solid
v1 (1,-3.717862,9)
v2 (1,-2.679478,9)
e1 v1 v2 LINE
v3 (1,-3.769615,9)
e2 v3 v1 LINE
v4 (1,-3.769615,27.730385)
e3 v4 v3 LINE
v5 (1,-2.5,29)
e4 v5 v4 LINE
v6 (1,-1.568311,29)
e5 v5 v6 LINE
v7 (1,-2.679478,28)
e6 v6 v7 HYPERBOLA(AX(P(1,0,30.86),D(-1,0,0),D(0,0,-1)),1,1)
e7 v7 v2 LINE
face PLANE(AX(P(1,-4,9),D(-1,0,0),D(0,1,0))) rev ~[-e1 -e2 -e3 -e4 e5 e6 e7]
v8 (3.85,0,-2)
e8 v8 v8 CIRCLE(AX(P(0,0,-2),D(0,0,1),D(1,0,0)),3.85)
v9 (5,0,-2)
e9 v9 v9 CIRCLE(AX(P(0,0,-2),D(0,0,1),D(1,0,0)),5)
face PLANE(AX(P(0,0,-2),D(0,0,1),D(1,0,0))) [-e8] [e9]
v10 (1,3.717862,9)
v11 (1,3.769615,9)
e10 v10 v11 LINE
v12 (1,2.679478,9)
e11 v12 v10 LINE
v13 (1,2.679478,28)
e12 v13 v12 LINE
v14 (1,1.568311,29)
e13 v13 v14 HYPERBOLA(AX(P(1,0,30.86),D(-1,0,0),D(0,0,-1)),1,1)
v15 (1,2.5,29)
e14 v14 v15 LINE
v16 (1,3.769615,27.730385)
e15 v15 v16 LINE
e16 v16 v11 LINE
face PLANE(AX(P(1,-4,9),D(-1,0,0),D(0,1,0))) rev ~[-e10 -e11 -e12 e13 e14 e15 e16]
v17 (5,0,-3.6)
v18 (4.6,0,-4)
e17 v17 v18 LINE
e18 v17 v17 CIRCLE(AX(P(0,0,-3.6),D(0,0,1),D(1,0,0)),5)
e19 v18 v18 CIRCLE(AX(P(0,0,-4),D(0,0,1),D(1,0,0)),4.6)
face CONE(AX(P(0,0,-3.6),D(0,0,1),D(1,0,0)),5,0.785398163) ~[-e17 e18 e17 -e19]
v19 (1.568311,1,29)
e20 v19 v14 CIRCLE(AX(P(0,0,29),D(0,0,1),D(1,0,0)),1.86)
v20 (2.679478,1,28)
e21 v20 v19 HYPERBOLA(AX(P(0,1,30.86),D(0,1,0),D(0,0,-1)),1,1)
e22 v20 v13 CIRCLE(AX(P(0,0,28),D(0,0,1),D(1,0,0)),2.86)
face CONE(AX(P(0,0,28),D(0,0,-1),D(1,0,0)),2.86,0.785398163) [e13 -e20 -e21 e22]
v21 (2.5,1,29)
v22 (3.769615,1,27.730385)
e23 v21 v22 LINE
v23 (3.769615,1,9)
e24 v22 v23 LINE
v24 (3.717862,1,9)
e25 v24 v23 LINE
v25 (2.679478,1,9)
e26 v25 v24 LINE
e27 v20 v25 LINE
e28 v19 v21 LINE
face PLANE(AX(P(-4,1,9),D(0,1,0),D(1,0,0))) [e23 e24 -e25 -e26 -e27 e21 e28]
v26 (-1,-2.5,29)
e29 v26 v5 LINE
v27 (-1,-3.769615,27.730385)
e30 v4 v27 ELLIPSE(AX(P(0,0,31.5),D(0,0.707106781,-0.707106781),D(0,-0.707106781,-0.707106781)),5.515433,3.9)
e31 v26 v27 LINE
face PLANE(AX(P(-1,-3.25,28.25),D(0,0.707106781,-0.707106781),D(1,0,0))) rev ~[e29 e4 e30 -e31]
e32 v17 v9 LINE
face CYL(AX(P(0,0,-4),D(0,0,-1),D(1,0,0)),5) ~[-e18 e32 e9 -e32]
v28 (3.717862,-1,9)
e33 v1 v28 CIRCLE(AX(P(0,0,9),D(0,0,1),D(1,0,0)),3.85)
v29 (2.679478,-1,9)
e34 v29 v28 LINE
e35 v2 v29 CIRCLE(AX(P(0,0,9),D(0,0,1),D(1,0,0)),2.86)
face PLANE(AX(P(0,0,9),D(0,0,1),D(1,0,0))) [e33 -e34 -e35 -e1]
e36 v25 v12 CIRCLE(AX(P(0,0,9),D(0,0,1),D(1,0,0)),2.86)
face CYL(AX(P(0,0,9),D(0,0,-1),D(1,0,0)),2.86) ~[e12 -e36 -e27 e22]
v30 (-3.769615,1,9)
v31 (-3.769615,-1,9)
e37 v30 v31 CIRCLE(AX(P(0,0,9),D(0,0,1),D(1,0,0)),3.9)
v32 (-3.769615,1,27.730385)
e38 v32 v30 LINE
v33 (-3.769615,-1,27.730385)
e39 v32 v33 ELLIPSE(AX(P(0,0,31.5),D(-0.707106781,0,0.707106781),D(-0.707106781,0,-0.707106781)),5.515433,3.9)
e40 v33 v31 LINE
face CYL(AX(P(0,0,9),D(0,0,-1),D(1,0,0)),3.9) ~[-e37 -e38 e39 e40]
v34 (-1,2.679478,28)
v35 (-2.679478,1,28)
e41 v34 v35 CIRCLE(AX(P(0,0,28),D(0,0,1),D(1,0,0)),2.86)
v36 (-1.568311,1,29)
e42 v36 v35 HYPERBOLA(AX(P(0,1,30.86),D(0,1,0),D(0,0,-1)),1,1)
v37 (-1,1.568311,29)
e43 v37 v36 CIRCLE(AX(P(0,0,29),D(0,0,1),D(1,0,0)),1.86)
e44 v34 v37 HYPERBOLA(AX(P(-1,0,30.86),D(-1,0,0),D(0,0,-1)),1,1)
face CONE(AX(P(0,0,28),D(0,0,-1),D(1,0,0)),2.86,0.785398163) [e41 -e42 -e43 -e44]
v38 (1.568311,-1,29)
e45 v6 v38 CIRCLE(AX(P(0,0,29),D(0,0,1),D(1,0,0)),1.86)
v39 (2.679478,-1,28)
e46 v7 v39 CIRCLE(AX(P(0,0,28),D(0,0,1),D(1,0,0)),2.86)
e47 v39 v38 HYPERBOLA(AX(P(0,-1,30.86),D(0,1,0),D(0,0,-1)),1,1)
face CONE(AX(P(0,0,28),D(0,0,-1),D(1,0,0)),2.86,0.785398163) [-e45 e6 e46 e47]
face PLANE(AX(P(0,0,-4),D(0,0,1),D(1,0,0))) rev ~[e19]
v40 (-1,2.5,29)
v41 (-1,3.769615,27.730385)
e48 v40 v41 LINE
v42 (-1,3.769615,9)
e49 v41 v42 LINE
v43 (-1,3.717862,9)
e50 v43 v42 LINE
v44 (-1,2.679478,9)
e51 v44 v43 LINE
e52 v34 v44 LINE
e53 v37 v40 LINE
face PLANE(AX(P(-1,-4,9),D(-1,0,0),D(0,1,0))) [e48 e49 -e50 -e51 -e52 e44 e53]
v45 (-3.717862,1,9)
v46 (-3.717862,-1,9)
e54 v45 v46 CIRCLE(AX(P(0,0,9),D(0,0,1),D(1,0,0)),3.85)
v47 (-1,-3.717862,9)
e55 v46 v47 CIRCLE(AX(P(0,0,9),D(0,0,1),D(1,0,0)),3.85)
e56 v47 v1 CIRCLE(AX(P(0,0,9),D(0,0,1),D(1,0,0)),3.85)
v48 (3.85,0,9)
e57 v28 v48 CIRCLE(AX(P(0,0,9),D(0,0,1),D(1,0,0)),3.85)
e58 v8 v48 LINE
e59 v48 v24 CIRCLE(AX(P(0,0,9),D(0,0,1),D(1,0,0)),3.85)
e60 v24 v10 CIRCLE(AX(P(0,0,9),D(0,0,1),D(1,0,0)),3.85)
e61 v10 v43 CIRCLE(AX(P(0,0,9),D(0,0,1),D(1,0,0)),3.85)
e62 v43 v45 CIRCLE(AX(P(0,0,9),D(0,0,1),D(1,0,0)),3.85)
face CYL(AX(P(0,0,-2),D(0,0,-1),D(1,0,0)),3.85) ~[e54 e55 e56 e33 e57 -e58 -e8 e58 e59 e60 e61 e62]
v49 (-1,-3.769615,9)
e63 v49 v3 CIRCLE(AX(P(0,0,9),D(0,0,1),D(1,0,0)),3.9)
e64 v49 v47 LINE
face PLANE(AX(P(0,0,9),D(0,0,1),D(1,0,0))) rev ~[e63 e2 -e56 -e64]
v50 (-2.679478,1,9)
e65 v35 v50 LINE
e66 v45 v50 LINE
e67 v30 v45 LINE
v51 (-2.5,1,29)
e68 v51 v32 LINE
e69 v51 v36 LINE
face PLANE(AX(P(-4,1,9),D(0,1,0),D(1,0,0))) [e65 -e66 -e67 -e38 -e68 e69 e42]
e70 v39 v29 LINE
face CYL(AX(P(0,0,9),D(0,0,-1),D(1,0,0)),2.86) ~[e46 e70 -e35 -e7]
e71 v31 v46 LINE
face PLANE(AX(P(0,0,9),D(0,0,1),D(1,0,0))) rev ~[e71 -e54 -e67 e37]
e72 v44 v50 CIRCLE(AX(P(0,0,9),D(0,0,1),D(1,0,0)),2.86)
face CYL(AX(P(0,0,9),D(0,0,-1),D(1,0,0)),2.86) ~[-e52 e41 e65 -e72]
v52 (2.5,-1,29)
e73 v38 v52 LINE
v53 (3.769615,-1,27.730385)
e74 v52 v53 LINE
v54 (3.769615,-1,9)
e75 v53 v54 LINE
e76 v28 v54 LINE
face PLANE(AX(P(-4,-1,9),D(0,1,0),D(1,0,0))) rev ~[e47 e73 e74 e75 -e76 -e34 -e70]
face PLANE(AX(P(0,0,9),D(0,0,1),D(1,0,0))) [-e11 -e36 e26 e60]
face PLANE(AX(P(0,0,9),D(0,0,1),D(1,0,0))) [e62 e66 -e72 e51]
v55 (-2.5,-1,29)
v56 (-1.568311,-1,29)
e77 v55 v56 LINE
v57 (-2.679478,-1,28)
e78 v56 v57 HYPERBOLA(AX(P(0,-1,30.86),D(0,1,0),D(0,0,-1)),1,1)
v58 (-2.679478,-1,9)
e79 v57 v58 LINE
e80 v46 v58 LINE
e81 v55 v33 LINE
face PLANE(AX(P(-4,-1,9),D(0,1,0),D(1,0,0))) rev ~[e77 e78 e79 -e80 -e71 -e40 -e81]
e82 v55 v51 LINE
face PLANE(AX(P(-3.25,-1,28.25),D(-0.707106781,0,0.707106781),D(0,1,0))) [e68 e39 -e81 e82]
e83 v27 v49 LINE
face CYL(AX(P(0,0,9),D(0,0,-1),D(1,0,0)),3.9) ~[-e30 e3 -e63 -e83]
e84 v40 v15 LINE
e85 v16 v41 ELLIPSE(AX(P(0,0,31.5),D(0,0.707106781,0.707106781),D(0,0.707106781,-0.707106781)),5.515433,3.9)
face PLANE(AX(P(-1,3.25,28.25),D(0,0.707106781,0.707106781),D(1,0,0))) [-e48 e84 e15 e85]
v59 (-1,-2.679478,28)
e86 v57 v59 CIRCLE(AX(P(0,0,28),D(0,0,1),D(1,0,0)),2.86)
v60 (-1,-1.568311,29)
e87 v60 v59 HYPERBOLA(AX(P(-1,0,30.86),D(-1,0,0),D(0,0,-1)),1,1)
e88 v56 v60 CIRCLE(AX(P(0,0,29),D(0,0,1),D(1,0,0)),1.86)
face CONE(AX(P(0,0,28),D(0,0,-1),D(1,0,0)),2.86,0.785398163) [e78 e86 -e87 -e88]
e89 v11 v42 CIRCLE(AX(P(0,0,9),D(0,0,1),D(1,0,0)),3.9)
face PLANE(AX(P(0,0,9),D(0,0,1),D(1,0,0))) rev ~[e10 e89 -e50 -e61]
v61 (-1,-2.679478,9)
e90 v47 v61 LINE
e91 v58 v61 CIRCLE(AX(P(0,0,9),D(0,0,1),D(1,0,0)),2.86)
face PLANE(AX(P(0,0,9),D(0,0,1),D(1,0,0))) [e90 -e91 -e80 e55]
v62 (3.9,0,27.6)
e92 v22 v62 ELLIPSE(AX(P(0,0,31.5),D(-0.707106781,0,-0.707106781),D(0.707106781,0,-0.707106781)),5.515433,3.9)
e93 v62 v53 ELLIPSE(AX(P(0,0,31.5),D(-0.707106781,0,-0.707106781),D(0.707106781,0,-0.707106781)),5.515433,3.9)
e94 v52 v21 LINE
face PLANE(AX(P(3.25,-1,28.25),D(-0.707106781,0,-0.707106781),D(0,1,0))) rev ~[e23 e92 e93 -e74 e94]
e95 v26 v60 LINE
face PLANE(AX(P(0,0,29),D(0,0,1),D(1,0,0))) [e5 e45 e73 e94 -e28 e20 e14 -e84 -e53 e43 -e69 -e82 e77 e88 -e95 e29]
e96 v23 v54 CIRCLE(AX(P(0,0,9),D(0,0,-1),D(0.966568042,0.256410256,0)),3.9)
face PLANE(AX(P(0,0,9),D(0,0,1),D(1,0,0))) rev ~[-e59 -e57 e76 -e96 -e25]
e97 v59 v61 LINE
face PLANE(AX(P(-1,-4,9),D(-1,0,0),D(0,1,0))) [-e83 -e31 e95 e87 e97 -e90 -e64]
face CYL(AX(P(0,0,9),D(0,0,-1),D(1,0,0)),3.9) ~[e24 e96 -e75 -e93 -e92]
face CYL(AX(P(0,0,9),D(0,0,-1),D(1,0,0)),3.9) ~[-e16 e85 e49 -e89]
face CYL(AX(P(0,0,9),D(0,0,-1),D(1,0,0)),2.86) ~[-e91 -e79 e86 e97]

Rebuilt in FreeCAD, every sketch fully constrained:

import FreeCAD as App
import Part
import Sketcher

V = App.Vector


def edges_at(feature, points):
    """Names of the edges that pass closest to the given points."""
    edges = feature.Shape.Edges
    near = lambda p: min(range(len(edges)), key=lambda i: edges[i].distToShape(Part.Vertex(*p))[0])
    return sorted({f"Edge{near(p) + 1}" for p in points})

doc = App.newDocument("Part")
body = doc.addObject("PartDesign::Body", "Body")

# Sketch on XY plane
sketch1 = doc.addObject("Sketcher::SketchObject", "Sketch")
body.addObject(sketch1)
sketch1.AttachmentSupport = (doc.XY_Plane, [""])
sketch1.MapMode = "FlatFace"
sketch1.AttachmentOffset = App.Placement(V(0, 0, 9), App.Rotation())
sketch1.addGeometry(Part.Circle(V(0, 0, 0), V(0, 0, 1), 2.9), False)
sketch1.addConstraint(Sketcher.Constraint("Coincident", 0, 3, -1, 1))
sketch1.addConstraint(Sketcher.Constraint("Diameter", 0, 5.72))
pad1 = doc.addObject("PartDesign::Pad", "Pad")
body.addObject(pad1)
pad1.Profile = sketch1
pad1.Length = 20
doc.recompute()

chamfer = doc.addObject("PartDesign::Chamfer", "Chamfer")
body.addObject(chamfer)
chamfer.Base = (pad1, edges_at(pad1, [(-2.86, 0, 29)]))
chamfer.Size = 1
body2 = doc.addObject("PartDesign::Body", "Body001")

# Sketch on XY plane
sketch2 = doc.addObject("Sketcher::SketchObject", "Sketch001")
body2.addObject(sketch2)
sketch2.AttachmentSupport = (doc.getObject("XY_Plane001"), [""])
sketch2.MapMode = "FlatFace"
sketch2.AttachmentOffset = App.Placement(V(0, 0, -2), App.Rotation())
sketch2.addGeometry(Part.Circle(V(0, 0, 0), V(0, 0, 1), 3.9), False)
sketch2.addConstraint(Sketcher.Constraint("Coincident", 0, 3, -1, 1))
sketch2.addConstraint(Sketcher.Constraint("Diameter", 0, 7.7))
pad2 = doc.addObject("PartDesign::Pad", "Pad001")
body2.addObject(pad2)
pad2.Profile = sketch2
pad2.Length = 11
body3 = doc.addObject("PartDesign::Body", "Body002")

# Sketch on XY plane
sketch3 = doc.addObject("Sketcher::SketchObject", "Sketch002")
body3.addObject(sketch3)
sketch3.AttachmentSupport = (doc.getObject("XY_Plane002"), [""])
sketch3.MapMode = "FlatFace"
sketch3.AttachmentOffset = App.Placement(V(0, 0, -4), App.Rotation())
sketch3.addGeometry(Part.Circle(V(0, 0, 0), V(0, 0, 1), 5), False)
sketch3.addConstraint(Sketcher.Constraint("Coincident", 0, 3, -1, 1))
sketch3.addConstraint(Sketcher.Constraint("Diameter", 0, 10.0))
pad3 = doc.addObject("PartDesign::Pad", "Pad002")
body3.addObject(pad3)
pad3.Profile = sketch3
pad3.Length = 2
body4 = doc.addObject("PartDesign::Body", "Body003")

# Sketch on XY plane
sketch4 = doc.addObject("Sketcher::SketchObject", "Sketch003")
body4.addObject(sketch4)
sketch4.AttachmentSupport = (doc.getObject("XY_Plane003"), [""])
sketch4.MapMode = "FlatFace"
sketch4.AttachmentOffset = App.Placement(V(0, 0, 9), App.Rotation())
sketch4.addGeometry(Part.Circle(V(0, 0, 0), V(0, 0, 1), 3.9), False)
sketch4.addConstraint(Sketcher.Constraint("Coincident", 0, 3, -1, 1))
sketch4.addConstraint(Sketcher.Constraint("Diameter", 0, 7.8))
pad4 = doc.addObject("PartDesign::Pad", "Pad003")
body4.addObject(pad4)
pad4.Profile = sketch4
pad4.Length = 20
body5 = doc.addObject("PartDesign::Body", "Body004")

# Sketch on XY plane
sketch5 = doc.addObject("Sketcher::SketchObject", "Sketch004")
body5.addObject(sketch5)
sketch5.AttachmentSupport = (doc.getObject("XY_Plane004"), [""])
sketch5.MapMode = "FlatFace"
sketch5.AttachmentOffset = App.Placement(V(0, 0, 9), App.Rotation())
sketch5.addGeometry(Part.LineSegment(V(-1, 4, 0), V(-1, -4, 0)), False)
sketch5.addGeometry(Part.LineSegment(V(-1, -4, 0), V(1, -4, 0)), False)
sketch5.addGeometry(Part.LineSegment(V(1, -4, 0), V(1, 4, 0)), False)
sketch5.addGeometry(Part.LineSegment(V(1, 4, 0), V(-1, 4, 0)), False)
sketch5.addConstraint(Sketcher.Constraint("Coincident", 0, 2, 1, 1))
sketch5.addConstraint(Sketcher.Constraint("Coincident", 1, 2, 2, 1))
sketch5.addConstraint(Sketcher.Constraint("Coincident", 2, 2, 3, 1))
sketch5.addConstraint(Sketcher.Constraint("Coincident", 3, 2, 0, 1))
sketch5.addConstraint(Sketcher.Constraint("Vertical", 0))
sketch5.addConstraint(Sketcher.Constraint("Horizontal", 1))
sketch5.addConstraint(Sketcher.Constraint("Vertical", 2))
sketch5.addConstraint(Sketcher.Constraint("Horizontal", 3))
sketch5.addConstraint(Sketcher.Constraint("Symmetric", 0, 2, 2, 2, -1, 1))
sketch5.addConstraint(Sketcher.Constraint("DistanceX", 1, 1, 1, 2, 2.0))
sketch5.addConstraint(Sketcher.Constraint("DistanceY", 0, 2, 0, 1, 8.0))
pad5 = doc.addObject("PartDesign::Pad", "Pad004")
body5.addObject(pad5)
pad5.Profile = sketch5
pad5.Length = 20
body6 = doc.addObject("PartDesign::Body", "Body005")

# Sketch on XY plane
sketch6 = doc.addObject("Sketcher::SketchObject", "Sketch005")
body6.addObject(sketch6)
sketch6.AttachmentSupport = (doc.getObject("XY_Plane005"), [""])
sketch6.MapMode = "FlatFace"
sketch6.AttachmentOffset = App.Placement(V(0, 0, 9), App.Rotation())
sketch6.addGeometry(Part.LineSegment(V(-4, 1, 0), V(-4, -1, 0)), False)
sketch6.addGeometry(Part.LineSegment(V(-4, -1, 0), V(4, -1, 0)), False)
sketch6.addGeometry(Part.LineSegment(V(4, -1, 0), V(4, 1, 0)), False)
sketch6.addGeometry(Part.LineSegment(V(4, 1, 0), V(-4, 1, 0)), False)
sketch6.addConstraint(Sketcher.Constraint("Coincident", 0, 2, 1, 1))
sketch6.addConstraint(Sketcher.Constraint("Coincident", 1, 2, 2, 1))
sketch6.addConstraint(Sketcher.Constraint("Coincident", 2, 2, 3, 1))
sketch6.addConstraint(Sketcher.Constraint("Coincident", 3, 2, 0, 1))
sketch6.addConstraint(Sketcher.Constraint("Vertical", 0))
sketch6.addConstraint(Sketcher.Constraint("Horizontal", 1))
sketch6.addConstraint(Sketcher.Constraint("Vertical", 2))
sketch6.addConstraint(Sketcher.Constraint("Horizontal", 3))
sketch6.addConstraint(Sketcher.Constraint("Symmetric", 0, 2, 2, 2, -1, 1))
sketch6.addConstraint(Sketcher.Constraint("DistanceX", 1, 1, 1, 2, 8.0))
sketch6.addConstraint(Sketcher.Constraint("DistanceY", 0, 2, 0, 1, 2.0))
pad6 = doc.addObject("PartDesign::Pad", "Pad005")
body6.addObject(pad6)
pad6.Profile = sketch6
pad6.Length = 20
doc.recompute()

boolean = doc.addObject("PartDesign::Boolean", "Boolean")
body6.addObject(boolean)
boolean.Type = "Fuse"
boolean.addObjects([body5])
doc.recompute()

chamfer2 = doc.addObject("PartDesign::Chamfer", "Chamfer001")
body6.addObject(chamfer2)
chamfer2.Base = (boolean, edges_at(boolean, [
    (-4, 0, 29),
    (0, -4, 29),
    (0, 4, 29),
    (4, 0, 29),
]))
chamfer2.Size = 1.5
doc.recompute()

boolean2 = doc.addObject("PartDesign::Boolean", "Boolean001")
body6.addObject(boolean2)
boolean2.Type = "Common"
boolean2.addObjects([body4])
doc.recompute()

boolean3 = doc.addObject("PartDesign::Boolean", "Boolean002")
body6.addObject(boolean3)
boolean3.Type = "Fuse"
boolean3.addObjects([body])
doc.recompute()

boolean4 = doc.addObject("PartDesign::Boolean", "Boolean003")
body6.addObject(boolean4)
boolean4.Type = "Fuse"
boolean4.addObjects([body2])
doc.recompute()

boolean5 = doc.addObject("PartDesign::Boolean", "Boolean004")
body6.addObject(boolean5)
boolean5.Type = "Fuse"
boolean5.addObjects([body3])
doc.recompute()

chamfer3 = doc.addObject("PartDesign::Chamfer", "Chamfer002")
body6.addObject(chamfer3)
chamfer3.Base = (boolean5, edges_at(boolean5, [(-5, 0, -4)]))
chamfer3.Size = 0.4

doc.recompute()
